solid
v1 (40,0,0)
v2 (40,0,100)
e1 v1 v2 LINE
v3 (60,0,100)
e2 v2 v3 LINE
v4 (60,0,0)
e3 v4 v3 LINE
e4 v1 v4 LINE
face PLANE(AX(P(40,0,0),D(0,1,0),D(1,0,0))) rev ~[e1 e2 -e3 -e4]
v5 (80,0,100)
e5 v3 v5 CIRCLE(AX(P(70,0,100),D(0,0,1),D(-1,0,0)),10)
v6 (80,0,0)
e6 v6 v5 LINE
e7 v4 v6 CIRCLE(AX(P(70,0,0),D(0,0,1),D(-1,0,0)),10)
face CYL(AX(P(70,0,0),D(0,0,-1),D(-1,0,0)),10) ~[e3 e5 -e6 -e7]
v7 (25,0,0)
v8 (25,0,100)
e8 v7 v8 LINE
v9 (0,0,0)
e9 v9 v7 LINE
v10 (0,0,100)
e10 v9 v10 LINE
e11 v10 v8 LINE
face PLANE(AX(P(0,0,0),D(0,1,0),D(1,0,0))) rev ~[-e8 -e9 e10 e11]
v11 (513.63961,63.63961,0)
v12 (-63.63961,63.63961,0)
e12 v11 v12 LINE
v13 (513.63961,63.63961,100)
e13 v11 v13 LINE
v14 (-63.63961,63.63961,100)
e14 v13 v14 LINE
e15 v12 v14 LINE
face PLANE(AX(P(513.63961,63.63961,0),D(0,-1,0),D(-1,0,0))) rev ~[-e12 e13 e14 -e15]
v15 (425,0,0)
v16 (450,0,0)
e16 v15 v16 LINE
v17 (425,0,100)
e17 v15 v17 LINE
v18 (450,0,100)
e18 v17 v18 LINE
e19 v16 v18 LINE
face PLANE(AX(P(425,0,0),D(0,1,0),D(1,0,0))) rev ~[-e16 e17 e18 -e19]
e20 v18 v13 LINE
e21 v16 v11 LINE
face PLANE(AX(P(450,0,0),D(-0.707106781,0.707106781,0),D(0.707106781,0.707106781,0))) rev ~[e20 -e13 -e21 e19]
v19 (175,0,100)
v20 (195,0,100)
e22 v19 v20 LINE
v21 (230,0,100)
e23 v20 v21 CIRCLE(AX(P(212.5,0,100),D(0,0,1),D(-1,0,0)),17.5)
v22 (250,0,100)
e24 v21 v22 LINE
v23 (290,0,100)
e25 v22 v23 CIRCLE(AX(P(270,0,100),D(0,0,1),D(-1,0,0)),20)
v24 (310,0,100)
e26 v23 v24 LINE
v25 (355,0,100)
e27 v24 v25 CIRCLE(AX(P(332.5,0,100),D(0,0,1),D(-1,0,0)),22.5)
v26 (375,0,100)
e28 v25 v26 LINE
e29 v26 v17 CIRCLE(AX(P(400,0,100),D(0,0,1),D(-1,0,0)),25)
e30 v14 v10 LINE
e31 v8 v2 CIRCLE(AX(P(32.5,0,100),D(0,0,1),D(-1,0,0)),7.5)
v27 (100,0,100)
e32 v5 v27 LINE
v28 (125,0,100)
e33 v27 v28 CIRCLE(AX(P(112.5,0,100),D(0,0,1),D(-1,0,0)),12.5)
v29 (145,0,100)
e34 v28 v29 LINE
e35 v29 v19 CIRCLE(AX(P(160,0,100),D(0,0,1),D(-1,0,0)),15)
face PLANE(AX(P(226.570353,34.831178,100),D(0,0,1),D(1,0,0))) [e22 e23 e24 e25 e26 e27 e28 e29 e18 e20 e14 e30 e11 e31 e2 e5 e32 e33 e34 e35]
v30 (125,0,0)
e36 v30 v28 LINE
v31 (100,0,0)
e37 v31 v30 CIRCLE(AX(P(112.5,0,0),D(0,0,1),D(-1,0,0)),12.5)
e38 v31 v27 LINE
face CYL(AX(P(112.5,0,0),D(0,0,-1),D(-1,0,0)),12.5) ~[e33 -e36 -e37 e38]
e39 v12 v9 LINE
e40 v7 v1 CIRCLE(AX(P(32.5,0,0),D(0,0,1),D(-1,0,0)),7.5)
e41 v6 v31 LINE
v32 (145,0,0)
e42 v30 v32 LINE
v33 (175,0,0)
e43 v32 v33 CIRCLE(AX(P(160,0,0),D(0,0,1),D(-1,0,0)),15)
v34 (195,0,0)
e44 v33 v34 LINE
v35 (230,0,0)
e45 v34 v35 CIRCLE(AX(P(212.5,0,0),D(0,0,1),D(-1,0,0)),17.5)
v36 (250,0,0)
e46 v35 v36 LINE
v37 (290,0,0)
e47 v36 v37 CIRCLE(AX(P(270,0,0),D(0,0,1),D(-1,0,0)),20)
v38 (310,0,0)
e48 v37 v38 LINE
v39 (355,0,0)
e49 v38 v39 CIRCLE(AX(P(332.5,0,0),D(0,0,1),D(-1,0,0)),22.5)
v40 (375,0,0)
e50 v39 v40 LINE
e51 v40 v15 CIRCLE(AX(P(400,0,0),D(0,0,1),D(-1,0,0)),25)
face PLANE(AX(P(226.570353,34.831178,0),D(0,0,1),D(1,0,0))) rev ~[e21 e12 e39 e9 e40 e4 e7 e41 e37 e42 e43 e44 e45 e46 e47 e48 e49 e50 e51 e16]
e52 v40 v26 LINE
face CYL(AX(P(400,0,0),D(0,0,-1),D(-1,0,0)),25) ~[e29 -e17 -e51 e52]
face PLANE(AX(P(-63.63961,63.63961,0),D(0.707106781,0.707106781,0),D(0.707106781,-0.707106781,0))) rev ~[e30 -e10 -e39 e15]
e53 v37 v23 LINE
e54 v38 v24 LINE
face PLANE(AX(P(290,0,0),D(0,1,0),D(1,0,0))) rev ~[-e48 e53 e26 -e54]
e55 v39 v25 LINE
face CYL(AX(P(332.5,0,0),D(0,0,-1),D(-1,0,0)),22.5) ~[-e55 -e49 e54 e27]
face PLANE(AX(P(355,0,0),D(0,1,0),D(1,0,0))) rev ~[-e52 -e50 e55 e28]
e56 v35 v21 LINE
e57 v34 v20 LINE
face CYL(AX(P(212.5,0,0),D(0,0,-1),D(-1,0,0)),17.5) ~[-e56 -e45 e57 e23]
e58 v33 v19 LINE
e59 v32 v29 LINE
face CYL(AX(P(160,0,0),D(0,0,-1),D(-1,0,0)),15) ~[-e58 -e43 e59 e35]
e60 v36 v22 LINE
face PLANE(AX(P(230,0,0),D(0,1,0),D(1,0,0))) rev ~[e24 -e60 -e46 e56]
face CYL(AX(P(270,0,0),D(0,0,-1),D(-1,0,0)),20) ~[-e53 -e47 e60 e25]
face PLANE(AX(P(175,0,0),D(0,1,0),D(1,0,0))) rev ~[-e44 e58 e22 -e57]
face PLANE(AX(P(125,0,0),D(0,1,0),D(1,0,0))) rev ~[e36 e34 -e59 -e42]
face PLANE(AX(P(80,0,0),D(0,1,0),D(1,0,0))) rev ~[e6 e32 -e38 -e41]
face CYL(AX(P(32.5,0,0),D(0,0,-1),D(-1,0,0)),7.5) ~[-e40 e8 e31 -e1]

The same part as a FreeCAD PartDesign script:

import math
import FreeCAD as App
import Part
import Sketcher
Q = App.Units.Quantity

doc = App.newDocument("Part")
body = doc.addObject("PartDesign::Body", "Body")

# Sketch on XY plane
sketch1 = body.newObject("Sketcher::SketchObject", "Sketch")
sketch1.AttachmentSupport = (doc.getObject("XY_Plane"), [""])
sketch1.MapMode = "FlatFace"
sketch1.addGeometry(Part.LineSegment(App.Vector(425, 0, 0), App.Vector(450, 0, 0)), False)
sketch1.addGeometry(Part.LineSegment(App.Vector(450, 0, 0), App.Vector(513.63961, 63.63961, 0)), False)
sketch1.addGeometry(Part.LineSegment(App.Vector(513.63961, 63.63961, 0), App.Vector(-63.63961, 63.63961, 0)), False)
sketch1.addGeometry(Part.LineSegment(App.Vector(-63.63961, 63.63961, 0), App.Vector(0, 0, 0)), False)
sketch1.addGeometry(Part.LineSegment(App.Vector(0, 0, 0), App.Vector(25, 0, 0)), False)
sketch1.addGeometry(Part.ArcOfCircle(Part.Circle(App.Vector(32.5, 0, 0), App.Vector(0, 0, 1), 7.5), math.radians(180), math.radians(360)), False)
sketch1.addGeometry(Part.LineSegment(App.Vector(40, 0, 0), App.Vector(60, 0, 0)), False)
sketch1.addGeometry(Part.ArcOfCircle(Part.Circle(App.Vector(70, 0, 0), App.Vector(0, 0, 1), 10), math.radians(180), math.radians(360)), False)
sketch1.addGeometry(Part.LineSegment(App.Vector(80, 0, 0), App.Vector(100, 0, 0)), False)
sketch1.addGeometry(Part.ArcOfCircle(Part.Circle(App.Vector(112.5, 0, 0), App.Vector(0, 0, 1), 12.5), math.radians(180), math.radians(360)), False)
sketch1.addGeometry(Part.LineSegment(App.Vector(125, 0, 0), App.Vector(145, 0, 0)), False)
sketch1.addGeometry(Part.ArcOfCircle(Part.Circle(App.Vector(160, 0, 0), App.Vector(0, 0, 1), 15), math.radians(180), math.radians(360)), False)
sketch1.addGeometry(Part.LineSegment(App.Vector(175, 0, 0), App.Vector(195, 0, 0)), False)
sketch1.addGeometry(Part.ArcOfCircle(Part.Circle(App.Vector(212.5, 0, 0), App.Vector(0, 0, 1), 17.5), math.radians(180), math.radians(360)), False)
sketch1.addGeometry(Part.LineSegment(App.Vector(230, 0, 0), App.Vector(250, 0, 0)), False)
sketch1.addGeometry(Part.ArcOfCircle(Part.Circle(App.Vector(270, 0, 0), App.Vector(0, 0, 1), 20), math.radians(180), math.radians(360)), False)
sketch1.addGeometry(Part.LineSegment(App.Vector(290, 0, 0), App.Vector(310, 0, 0)), False)
sketch1.addGeometry(Part.ArcOfCircle(Part.Circle(App.Vector(332.5, 0, 0), App.Vector(0, 0, 1), 22.5), math.radians(180), math.radians(360)), False)
sketch1.addGeometry(Part.LineSegment(App.Vector(355, 0, 0), App.Vector(375, 0, 0)), False)
sketch1.addGeometry(Part.ArcOfCircle(Part.Circle(App.Vector(400, 0, 0), App.Vector(0, 0, 1), 25), math.radians(180), math.radians(360)), False)
sketch1.addConstraint(Sketcher.Constraint("Coincident", 0, 2, 1, 1))
sketch1.addConstraint(Sketcher.Constraint("Coincident", 1, 2, 2, 1))
sketch1.addConstraint(Sketcher.Constraint("Coincident", 2, 2, 3, 1))
sketch1.addConstraint(Sketcher.Constraint("Coincident", 3, 2, 4, 1))
sketch1.addConstraint(Sketcher.Constraint("Coincident", 4, 2, 5, 1))
sketch1.addConstraint(Sketcher.Constraint("Coincident", 5, 2, 6, 1))
sketch1.addConstraint(Sketcher.Constraint("Coincident", 6, 2, 7, 1))
sketch1.addConstraint(Sketcher.Constraint("Coincident", 7, 2, 8, 1))
sketch1.addConstraint(Sketcher.Constraint("Coincident", 8, 2, 9, 1))
sketch1.addConstraint(Sketcher.Constraint("Coincident", 9, 2, 10, 1))
sketch1.addConstraint(Sketcher.Constraint("Coincident", 10, 2, 11, 1))
sketch1.addConstraint(Sketcher.Constraint("Coincident", 11, 2, 12, 1))
sketch1.addConstraint(Sketcher.Constraint("Coincident", 12, 2, 13, 1))
sketch1.addConstraint(Sketcher.Constraint("Coincident", 13, 2, 14, 1))
sketch1.addConstraint(Sketcher.Constraint("Coincident", 14, 2, 15, 1))
sketch1.addConstraint(Sketcher.Constraint("Coincident", 15, 2, 16, 1))
sketch1.addConstraint(Sketcher.Constraint("Coincident", 16, 2, 17, 1))
sketch1.addConstraint(Sketcher.Constraint("Coincident", 17, 2, 18, 1))
sketch1.addConstraint(Sketcher.Constraint("Coincident", 18, 2, 19, 1))
sketch1.addConstraint(Sketcher.Constraint("Coincident", 19, 2, 0, 1))
sketch1.addConstraint(Sketcher.Constraint("Horizontal", 0))
sketch1.addConstraint(Sketcher.Constraint("Horizontal", 2))
sketch1.addConstraint(Sketcher.Constraint("Horizontal", 4))
sketch1.addConstraint(Sketcher.Constraint("Horizontal", 6))
sketch1.addConstraint(Sketcher.Constraint("Horizontal", 8))
sketch1.addConstraint(Sketcher.Constraint("Horizontal", 10))
sketch1.addConstraint(Sketcher.Constraint("Horizontal", 12))
sketch1.addConstraint(Sketcher.Constraint("Horizontal", 14))
sketch1.addConstraint(Sketcher.Constraint("Horizontal", 16))
sketch1.addConstraint(Sketcher.Constraint("Horizontal", 18))
sketch1.addConstraint(Sketcher.Constraint("Coincident", 3, 2, -1, 1))
sketch1.addConstraint(Sketcher.Constraint("PointOnObject", 5, 3, -1))
sketch1.addConstraint(Sketcher.Constraint("PointOnObject", 7, 3, -1))
sketch1.addConstraint(Sketcher.Constraint("PointOnObject", 9, 3, -1))
sketch1.addConstraint(Sketcher.Constraint("PointOnObject", 11, 3, -1))
sketch1.addConstraint(Sketcher.Constraint("PointOnObject", 13, 3, -1))
sketch1.addConstraint(Sketcher.Constraint("PointOnObject", 15, 3, -1))
sketch1.addConstraint(Sketcher.Constraint("PointOnObject", 17, 3, -1))
sketch1.addConstraint(Sketcher.Constraint("PointOnObject", 19, 3, -1))
sketch1.addConstraint(Sketcher.Constraint("PointOnObject", 0, 2, -1))
sketch1.addConstraint(Sketcher.Constraint("PointOnObject", 5, 2, -1))
sketch1.addConstraint(Sketcher.Constraint("PointOnObject", 7, 2, -1))
sketch1.addConstraint(Sketcher.Constraint("PointOnObject", 9, 2, -1))
sketch1.addConstraint(Sketcher.Constraint("PointOnObject", 11, 2, -1))
sketch1.addConstraint(Sketcher.Constraint("PointOnObject", 13, 2, -1))
sketch1.addConstraint(Sketcher.Constraint("PointOnObject", 15, 2, -1))
sketch1.addConstraint(Sketcher.Constraint("PointOnObject", 17, 2, -1))
sketch1.addConstraint(Sketcher.Constraint("Perpendicular", 1, 3))
sketch1.addConstraint(Sketcher.Constraint("Equal", 0, 4))
sketch1.addConstraint(Sketcher.Constraint("Equal", 6, 8))
sketch1.addConstraint(Sketcher.Constraint("Equal", 8, 10))
sketch1.addConstraint(Sketcher.Constraint("Equal", 10, 12))
sketch1.addConstraint(Sketcher.Constraint("Equal", 12, 14))
sketch1.addConstraint(Sketcher.Constraint("Equal", 14, 16))
sketch1.addConstraint(Sketcher.Constraint("Equal", 16, 18))
sketch1.addConstraint(Sketcher.Constraint("Equal", 1, 3))
sketch1.addConstraint(Sketcher.Constraint("Radius", 7, Q("10 mm")))
sketch1.addConstraint(Sketcher.Constraint("Radius", 11, Q("15 mm")))
sketch1.addConstraint(Sketcher.Constraint("Radius", 15, Q("20 mm")))
sketch1.addConstraint(Sketcher.Constraint("Radius", 19, Q("25 mm")))
sketch1.addConstraint(Sketcher.Constraint("Radius", 5, Q("7.5 mm")))
sketch1.addConstraint(Sketcher.Constraint("Radius", 9, Q("12.5 mm")))
sketch1.addConstraint(Sketcher.Constraint("Radius", 13, Q("17.5 mm")))
sketch1.addConstraint(Sketcher.Constraint("Radius", 17, Q("22.5 mm")))
sketch1.addConstraint(Sketcher.Constraint("DistanceX", 0, 1, 0, 2, Q("25 mm")))
sketch1.addConstraint(Sketcher.Constraint("DistanceX", 6, 1, 6, 2, Q("20 mm")))
sketch1.addConstraint(Sketcher.Constraint("Distance", 1, Q("90 mm")))
pad1 = body.newObject("PartDesign::Pad", "Pad")
pad1.Profile = sketch1
pad1.Length = 100

doc.recompute()
